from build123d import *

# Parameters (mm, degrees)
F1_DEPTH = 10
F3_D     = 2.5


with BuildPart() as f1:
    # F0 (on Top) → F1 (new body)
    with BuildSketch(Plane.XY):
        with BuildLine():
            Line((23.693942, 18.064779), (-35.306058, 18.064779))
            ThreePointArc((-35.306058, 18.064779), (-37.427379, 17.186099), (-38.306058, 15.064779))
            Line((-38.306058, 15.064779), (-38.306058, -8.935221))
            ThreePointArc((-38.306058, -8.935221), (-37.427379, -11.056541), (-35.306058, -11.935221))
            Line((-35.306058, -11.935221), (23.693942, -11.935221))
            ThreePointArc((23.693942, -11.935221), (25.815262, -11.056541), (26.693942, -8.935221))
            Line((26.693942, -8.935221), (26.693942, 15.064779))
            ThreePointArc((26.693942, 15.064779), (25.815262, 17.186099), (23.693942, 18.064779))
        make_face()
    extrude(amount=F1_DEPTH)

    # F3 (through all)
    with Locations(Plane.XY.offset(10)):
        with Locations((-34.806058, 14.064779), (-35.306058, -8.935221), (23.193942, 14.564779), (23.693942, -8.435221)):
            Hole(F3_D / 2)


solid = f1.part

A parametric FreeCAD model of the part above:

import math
import FreeCAD as App
import Part
import Sketcher

V = App.Vector

doc = App.newDocument("Part")
body = doc.addObject("PartDesign::Body", "Body")

sketch1 = body.newObject("Sketcher::SketchObject", "Sketch")
sketch1.AttachmentSupport = (doc.getObject("XY_Plane"), [""])
sketch1.MapMode = "FlatFace"
sketch1.addGeometry([
    Part.LineSegment(V(23.693942, 18.064779, 0), V(-35.306058, 18.064779, 0)),
    Part.ArcOfCircle(Part.Circle(V(-35.306059, 15.06478, 0), V(0, 0, 1), 2.999999), math.radians(89.99999), math.radians(180.00001)),
    Part.LineSegment(V(-38.306058, 15.064779, 0), V(-38.306058, -8.935221, 0)),
    Part.ArcOfCircle(Part.Circle(V(-35.306059, -8.935222, 0), V(0, 0, 1), 2.999999), math.radians(179.99999), math.radians(270.00001)),
    Part.LineSegment(V(-35.306058, -11.935221, 0), V(23.693942, -11.935221, 0)),
    Part.ArcOfCircle(Part.Circle(V(23.693941, -8.93522, 0), V(0, 0, 1), 3.000001), math.radians(-89.999978), math.radians(-0.000022)),
    Part.LineSegment(V(26.693942, -8.935221, 0), V(26.693942, 15.064779, 0)),
    Part.ArcOfCircle(Part.Circle(V(23.693941, 15.064778, 0), V(0, 0, 1), 3.000001), math.radians(0.000022), math.radians(89.999978)),
], False)
sketch1.addConstraint([
    Sketcher.Constraint("Tangent", 0, 2, 1, 1),
    Sketcher.Constraint("Tangent", 1, 2, 2, 1),
    Sketcher.Constraint("Tangent", 2, 2, 3, 1),
    Sketcher.Constraint("Tangent", 3, 2, 4, 1),
    Sketcher.Constraint("Tangent", 4, 2, 5, 1),
    Sketcher.Constraint("Tangent", 5, 2, 6, 1),
    Sketcher.Constraint("Tangent", 6, 2, 7, 1),
    Sketcher.Constraint("Tangent", 7, 2, 0, 1),
    Sketcher.Constraint("Horizontal", 0),
    Sketcher.Constraint("Vertical", 2),
    Sketcher.Constraint("Horizontal", 4),
    Sketcher.Constraint("Vertical", 6),
    Sketcher.Constraint("Equal", 1, 3),
    Sketcher.Constraint("Equal", 3, 5),
    Sketcher.Constraint("Equal", 5, 7),
    Sketcher.Constraint("Radius", 1, 2.999999),
    Sketcher.Constraint("DistanceX", 0, 2, 0, 1, 59.0),
    Sketcher.Constraint("DistanceY", 2, 2, 2, 1, 24.0),
    Sketcher.Constraint("DistanceX", 1, 3, -1, 1, 35.306059),
    Sketcher.Constraint("DistanceY", -1, 1, 1, 3, 15.06478),
])
pad1 = body.newObject("PartDesign::Pad", "Pad")
pad1.Profile = sketch1
pad1.Length = 10

sketch2 = body.newObject("Sketcher::SketchObject", "Sketch001")
sketch2.AttachmentSupport = (doc.getObject("XY_Plane"), [""])
sketch2.MapMode = "FlatFace"
sketch2.AttachmentOffset = App.Placement(V(0, 0, 10), App.Rotation())
sketch2.addGeometry([
    Part.Circle(V(-34.806058, 14.064779, 0), V(0, 0, 1), 1.25),
    Part.Circle(V(-35.306058, -8.935221, 0), V(0, 0, 1), 1.25),
    Part.Circle(V(23.193942, 14.564779, 0), V(0, 0, 1), 1.25),
    Part.Circle(V(23.693942, -8.435221, 0), V(0, 0, 1), 1.25),
], False)
sketch2.addConstraint([
    Sketcher.Constraint("Equal", 0, 1),
    Sketcher.Constraint("Equal", 1, 2),
    Sketcher.Constraint("Equal", 2, 3),
    Sketcher.Constraint("Diameter", 0, 2.5),
    Sketcher.Constraint("DistanceY", 1, 3, 0, 3, 23.0),
    Sketcher.Constraint("DistanceX", 0, 3, 2, 3, 58.0),
    Sketcher.Constraint("DistanceY", 3, 3, 2, 3, 23.0),
    Sketcher.Constraint("DistanceX", 1, 3, 3, 3, 59.0),
    Sketcher.Constraint("DistanceX", 1, 3, 0, 3, 0.5),
    Sketcher.Constraint("DistanceY", 0, 3, 2, 3, 0.5),
    Sketcher.Constraint("DistanceY", -1, 1, 0, 3, 14.064779),
    Sketcher.Constraint("DistanceX", -1, 1, 2, 3, 23.193942),
])
doc.recompute()
hole = body.newObject("PartDesign::Hole", "Hole")
hole.Profile = sketch2
hole.ThreadType = "None"
hole.Diameter = 2.5
hole.DepthType = "ThroughAll"

doc.recompute()
